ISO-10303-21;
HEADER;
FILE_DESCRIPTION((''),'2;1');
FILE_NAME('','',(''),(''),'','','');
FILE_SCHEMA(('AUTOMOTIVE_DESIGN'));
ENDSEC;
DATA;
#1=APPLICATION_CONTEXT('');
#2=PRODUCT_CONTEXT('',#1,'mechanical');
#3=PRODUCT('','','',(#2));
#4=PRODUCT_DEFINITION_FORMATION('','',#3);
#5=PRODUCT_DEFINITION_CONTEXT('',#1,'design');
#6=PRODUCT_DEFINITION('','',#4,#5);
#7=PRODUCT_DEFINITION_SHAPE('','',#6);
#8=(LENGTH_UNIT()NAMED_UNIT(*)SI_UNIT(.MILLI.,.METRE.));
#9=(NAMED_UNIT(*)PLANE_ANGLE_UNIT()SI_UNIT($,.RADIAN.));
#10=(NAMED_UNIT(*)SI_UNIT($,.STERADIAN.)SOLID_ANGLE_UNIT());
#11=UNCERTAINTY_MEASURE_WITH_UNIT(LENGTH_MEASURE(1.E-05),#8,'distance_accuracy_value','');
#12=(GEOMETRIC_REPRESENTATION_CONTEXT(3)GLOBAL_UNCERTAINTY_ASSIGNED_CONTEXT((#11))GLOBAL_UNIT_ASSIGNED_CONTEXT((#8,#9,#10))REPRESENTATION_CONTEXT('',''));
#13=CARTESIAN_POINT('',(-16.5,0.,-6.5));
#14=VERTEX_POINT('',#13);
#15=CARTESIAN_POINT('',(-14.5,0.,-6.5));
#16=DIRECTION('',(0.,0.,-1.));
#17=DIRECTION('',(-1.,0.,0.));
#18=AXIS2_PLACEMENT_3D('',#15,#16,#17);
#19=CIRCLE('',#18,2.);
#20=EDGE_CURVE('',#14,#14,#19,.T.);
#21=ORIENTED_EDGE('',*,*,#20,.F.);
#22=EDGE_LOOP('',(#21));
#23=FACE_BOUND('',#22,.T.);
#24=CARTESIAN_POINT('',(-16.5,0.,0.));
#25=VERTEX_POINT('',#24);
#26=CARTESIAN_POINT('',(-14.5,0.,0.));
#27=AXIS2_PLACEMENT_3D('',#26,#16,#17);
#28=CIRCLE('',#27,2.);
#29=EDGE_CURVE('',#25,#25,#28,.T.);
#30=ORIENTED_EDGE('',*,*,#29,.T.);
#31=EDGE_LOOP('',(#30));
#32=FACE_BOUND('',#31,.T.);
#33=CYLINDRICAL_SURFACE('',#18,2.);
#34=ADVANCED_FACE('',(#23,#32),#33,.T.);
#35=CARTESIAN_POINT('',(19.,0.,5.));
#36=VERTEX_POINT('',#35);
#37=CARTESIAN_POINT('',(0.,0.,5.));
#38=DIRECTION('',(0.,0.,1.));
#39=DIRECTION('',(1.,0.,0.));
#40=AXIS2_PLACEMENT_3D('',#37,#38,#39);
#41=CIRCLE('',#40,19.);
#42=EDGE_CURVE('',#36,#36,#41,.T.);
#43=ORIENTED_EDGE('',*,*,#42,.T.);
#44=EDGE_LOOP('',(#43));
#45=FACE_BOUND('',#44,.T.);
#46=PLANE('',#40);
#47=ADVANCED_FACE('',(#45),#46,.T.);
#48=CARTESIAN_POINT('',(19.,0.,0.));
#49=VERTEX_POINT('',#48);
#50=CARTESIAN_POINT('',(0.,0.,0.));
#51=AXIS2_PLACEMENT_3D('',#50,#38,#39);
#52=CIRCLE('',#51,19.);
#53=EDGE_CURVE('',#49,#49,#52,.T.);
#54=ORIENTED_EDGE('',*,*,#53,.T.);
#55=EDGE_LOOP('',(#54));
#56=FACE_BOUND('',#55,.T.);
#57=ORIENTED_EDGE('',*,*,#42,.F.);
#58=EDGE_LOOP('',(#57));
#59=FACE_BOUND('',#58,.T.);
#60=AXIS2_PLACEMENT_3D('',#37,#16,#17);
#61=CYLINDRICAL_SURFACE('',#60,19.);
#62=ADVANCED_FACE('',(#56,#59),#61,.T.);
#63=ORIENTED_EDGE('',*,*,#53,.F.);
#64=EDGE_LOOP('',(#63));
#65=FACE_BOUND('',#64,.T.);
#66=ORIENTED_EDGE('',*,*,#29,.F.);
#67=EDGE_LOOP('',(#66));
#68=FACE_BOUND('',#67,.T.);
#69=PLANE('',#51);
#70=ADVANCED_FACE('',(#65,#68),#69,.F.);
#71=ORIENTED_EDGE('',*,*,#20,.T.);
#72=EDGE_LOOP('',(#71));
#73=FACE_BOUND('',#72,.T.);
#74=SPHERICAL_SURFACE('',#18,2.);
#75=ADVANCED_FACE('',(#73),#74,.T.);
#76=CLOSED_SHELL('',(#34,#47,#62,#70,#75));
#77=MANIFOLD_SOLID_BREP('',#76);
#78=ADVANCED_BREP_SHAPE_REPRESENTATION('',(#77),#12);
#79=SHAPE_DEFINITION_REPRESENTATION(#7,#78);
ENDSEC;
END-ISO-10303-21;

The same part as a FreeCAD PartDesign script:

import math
import FreeCAD as App
import Part
import Sketcher

V = App.Vector
Q = App.Units.Quantity

doc = App.newDocument("Part")
body = doc.addObject("PartDesign::Body", "Body")

# Sketch on XY plane
sketch1 = body.newObject("Sketcher::SketchObject", "Sketch")
sketch1.AttachmentSupport = (doc.getObject("XY_Plane"), [""])
sketch1.MapMode = "FlatFace"
sketch1.addGeometry(Part.Circle(V(0, 0, 0), V(0, 0, 1), 19), False)
sketch1.addConstraint(Sketcher.Constraint("Coincident", 0, 3, -1, 1))
sketch1.addConstraint(Sketcher.Constraint("Diameter", 0, Q("38 mm")))
pad1 = body.newObject("PartDesign::Pad", "Pad")
pad1.Profile = sketch1
pad1.Length = 5

# Sketch on XZ plane
sketch2 = body.newObject("Sketcher::SketchObject", "Sketch001")
sketch2.AttachmentSupport = (doc.getObject("XZ_Plane"), [""])
sketch2.MapMode = "FlatFace"
sketch2.addGeometry(Part.LineSegment(V(-16.5, -6.5, 0), V(-16.5, 0, 0)), False)
sketch2.addGeometry(Part.LineSegment(V(-16.5, 0, 0), V(-14.5, 0, 0)), False)
sketch2.addGeometry(Part.LineSegment(V(-14.5, 0, 0), V(-14.5, -8.5, 0)), False)
sketch2.addGeometry(Part.ArcOfCircle(Part.Circle(V(-14.5, -6.5, 0), V(0, 0, 1), 2), math.radians(-180), math.radians(-90)), False)
sketch2.addGeometry(Part.LineSegment(V(-14.5, -8.5, 0), V(-14.5, 0, 0)), True)  # axis
sketch2.addConstraint(Sketcher.Constraint("Coincident", 0, 2, 1, 1))
sketch2.addConstraint(Sketcher.Constraint("Coincident", 1, 2, 2, 1))
sketch2.addConstraint(Sketcher.Constraint("Coincident", 2, 2, 3, 2))
sketch2.addConstraint(Sketcher.Constraint("Tangent", 3, 1, 0, 1))
sketch2.addConstraint(Sketcher.Constraint("Vertical", 0))
sketch2.addConstraint(Sketcher.Constraint("Horizontal", 1))
sketch2.addConstraint(Sketcher.Constraint("Vertical", 2))
sketch2.addConstraint(Sketcher.Constraint("Vertical", 4))
sketch2.addConstraint(Sketcher.Constraint("Coincident", 4, 1, 2, 2))
sketch2.addConstraint(Sketcher.Constraint("PointOnObject", 0, 2, -1))
sketch2.addConstraint(Sketcher.Constraint("PointOnObject", 4, 2, -1))
sketch2.addConstraint(Sketcher.Constraint("Vertical", 3, 3, 1, 2))
sketch2.addConstraint(Sketcher.Constraint("Radius", 3, Q("2 mm")))
sketch2.addConstraint(Sketcher.Constraint("DistanceY", 0, 1, 0, 2, Q("6.5 mm")))
sketch2.addConstraint(Sketcher.Constraint("DistanceX", 3, 3, -1, 1, Q("14.5 mm")))
revolution = body.newObject("PartDesign::Revolution", "Revolution")
revolution.Profile = sketch2
revolution.ReferenceAxis = (sketch2, ["Axis0"])
revolution.Angle = 360

doc.recompute()
